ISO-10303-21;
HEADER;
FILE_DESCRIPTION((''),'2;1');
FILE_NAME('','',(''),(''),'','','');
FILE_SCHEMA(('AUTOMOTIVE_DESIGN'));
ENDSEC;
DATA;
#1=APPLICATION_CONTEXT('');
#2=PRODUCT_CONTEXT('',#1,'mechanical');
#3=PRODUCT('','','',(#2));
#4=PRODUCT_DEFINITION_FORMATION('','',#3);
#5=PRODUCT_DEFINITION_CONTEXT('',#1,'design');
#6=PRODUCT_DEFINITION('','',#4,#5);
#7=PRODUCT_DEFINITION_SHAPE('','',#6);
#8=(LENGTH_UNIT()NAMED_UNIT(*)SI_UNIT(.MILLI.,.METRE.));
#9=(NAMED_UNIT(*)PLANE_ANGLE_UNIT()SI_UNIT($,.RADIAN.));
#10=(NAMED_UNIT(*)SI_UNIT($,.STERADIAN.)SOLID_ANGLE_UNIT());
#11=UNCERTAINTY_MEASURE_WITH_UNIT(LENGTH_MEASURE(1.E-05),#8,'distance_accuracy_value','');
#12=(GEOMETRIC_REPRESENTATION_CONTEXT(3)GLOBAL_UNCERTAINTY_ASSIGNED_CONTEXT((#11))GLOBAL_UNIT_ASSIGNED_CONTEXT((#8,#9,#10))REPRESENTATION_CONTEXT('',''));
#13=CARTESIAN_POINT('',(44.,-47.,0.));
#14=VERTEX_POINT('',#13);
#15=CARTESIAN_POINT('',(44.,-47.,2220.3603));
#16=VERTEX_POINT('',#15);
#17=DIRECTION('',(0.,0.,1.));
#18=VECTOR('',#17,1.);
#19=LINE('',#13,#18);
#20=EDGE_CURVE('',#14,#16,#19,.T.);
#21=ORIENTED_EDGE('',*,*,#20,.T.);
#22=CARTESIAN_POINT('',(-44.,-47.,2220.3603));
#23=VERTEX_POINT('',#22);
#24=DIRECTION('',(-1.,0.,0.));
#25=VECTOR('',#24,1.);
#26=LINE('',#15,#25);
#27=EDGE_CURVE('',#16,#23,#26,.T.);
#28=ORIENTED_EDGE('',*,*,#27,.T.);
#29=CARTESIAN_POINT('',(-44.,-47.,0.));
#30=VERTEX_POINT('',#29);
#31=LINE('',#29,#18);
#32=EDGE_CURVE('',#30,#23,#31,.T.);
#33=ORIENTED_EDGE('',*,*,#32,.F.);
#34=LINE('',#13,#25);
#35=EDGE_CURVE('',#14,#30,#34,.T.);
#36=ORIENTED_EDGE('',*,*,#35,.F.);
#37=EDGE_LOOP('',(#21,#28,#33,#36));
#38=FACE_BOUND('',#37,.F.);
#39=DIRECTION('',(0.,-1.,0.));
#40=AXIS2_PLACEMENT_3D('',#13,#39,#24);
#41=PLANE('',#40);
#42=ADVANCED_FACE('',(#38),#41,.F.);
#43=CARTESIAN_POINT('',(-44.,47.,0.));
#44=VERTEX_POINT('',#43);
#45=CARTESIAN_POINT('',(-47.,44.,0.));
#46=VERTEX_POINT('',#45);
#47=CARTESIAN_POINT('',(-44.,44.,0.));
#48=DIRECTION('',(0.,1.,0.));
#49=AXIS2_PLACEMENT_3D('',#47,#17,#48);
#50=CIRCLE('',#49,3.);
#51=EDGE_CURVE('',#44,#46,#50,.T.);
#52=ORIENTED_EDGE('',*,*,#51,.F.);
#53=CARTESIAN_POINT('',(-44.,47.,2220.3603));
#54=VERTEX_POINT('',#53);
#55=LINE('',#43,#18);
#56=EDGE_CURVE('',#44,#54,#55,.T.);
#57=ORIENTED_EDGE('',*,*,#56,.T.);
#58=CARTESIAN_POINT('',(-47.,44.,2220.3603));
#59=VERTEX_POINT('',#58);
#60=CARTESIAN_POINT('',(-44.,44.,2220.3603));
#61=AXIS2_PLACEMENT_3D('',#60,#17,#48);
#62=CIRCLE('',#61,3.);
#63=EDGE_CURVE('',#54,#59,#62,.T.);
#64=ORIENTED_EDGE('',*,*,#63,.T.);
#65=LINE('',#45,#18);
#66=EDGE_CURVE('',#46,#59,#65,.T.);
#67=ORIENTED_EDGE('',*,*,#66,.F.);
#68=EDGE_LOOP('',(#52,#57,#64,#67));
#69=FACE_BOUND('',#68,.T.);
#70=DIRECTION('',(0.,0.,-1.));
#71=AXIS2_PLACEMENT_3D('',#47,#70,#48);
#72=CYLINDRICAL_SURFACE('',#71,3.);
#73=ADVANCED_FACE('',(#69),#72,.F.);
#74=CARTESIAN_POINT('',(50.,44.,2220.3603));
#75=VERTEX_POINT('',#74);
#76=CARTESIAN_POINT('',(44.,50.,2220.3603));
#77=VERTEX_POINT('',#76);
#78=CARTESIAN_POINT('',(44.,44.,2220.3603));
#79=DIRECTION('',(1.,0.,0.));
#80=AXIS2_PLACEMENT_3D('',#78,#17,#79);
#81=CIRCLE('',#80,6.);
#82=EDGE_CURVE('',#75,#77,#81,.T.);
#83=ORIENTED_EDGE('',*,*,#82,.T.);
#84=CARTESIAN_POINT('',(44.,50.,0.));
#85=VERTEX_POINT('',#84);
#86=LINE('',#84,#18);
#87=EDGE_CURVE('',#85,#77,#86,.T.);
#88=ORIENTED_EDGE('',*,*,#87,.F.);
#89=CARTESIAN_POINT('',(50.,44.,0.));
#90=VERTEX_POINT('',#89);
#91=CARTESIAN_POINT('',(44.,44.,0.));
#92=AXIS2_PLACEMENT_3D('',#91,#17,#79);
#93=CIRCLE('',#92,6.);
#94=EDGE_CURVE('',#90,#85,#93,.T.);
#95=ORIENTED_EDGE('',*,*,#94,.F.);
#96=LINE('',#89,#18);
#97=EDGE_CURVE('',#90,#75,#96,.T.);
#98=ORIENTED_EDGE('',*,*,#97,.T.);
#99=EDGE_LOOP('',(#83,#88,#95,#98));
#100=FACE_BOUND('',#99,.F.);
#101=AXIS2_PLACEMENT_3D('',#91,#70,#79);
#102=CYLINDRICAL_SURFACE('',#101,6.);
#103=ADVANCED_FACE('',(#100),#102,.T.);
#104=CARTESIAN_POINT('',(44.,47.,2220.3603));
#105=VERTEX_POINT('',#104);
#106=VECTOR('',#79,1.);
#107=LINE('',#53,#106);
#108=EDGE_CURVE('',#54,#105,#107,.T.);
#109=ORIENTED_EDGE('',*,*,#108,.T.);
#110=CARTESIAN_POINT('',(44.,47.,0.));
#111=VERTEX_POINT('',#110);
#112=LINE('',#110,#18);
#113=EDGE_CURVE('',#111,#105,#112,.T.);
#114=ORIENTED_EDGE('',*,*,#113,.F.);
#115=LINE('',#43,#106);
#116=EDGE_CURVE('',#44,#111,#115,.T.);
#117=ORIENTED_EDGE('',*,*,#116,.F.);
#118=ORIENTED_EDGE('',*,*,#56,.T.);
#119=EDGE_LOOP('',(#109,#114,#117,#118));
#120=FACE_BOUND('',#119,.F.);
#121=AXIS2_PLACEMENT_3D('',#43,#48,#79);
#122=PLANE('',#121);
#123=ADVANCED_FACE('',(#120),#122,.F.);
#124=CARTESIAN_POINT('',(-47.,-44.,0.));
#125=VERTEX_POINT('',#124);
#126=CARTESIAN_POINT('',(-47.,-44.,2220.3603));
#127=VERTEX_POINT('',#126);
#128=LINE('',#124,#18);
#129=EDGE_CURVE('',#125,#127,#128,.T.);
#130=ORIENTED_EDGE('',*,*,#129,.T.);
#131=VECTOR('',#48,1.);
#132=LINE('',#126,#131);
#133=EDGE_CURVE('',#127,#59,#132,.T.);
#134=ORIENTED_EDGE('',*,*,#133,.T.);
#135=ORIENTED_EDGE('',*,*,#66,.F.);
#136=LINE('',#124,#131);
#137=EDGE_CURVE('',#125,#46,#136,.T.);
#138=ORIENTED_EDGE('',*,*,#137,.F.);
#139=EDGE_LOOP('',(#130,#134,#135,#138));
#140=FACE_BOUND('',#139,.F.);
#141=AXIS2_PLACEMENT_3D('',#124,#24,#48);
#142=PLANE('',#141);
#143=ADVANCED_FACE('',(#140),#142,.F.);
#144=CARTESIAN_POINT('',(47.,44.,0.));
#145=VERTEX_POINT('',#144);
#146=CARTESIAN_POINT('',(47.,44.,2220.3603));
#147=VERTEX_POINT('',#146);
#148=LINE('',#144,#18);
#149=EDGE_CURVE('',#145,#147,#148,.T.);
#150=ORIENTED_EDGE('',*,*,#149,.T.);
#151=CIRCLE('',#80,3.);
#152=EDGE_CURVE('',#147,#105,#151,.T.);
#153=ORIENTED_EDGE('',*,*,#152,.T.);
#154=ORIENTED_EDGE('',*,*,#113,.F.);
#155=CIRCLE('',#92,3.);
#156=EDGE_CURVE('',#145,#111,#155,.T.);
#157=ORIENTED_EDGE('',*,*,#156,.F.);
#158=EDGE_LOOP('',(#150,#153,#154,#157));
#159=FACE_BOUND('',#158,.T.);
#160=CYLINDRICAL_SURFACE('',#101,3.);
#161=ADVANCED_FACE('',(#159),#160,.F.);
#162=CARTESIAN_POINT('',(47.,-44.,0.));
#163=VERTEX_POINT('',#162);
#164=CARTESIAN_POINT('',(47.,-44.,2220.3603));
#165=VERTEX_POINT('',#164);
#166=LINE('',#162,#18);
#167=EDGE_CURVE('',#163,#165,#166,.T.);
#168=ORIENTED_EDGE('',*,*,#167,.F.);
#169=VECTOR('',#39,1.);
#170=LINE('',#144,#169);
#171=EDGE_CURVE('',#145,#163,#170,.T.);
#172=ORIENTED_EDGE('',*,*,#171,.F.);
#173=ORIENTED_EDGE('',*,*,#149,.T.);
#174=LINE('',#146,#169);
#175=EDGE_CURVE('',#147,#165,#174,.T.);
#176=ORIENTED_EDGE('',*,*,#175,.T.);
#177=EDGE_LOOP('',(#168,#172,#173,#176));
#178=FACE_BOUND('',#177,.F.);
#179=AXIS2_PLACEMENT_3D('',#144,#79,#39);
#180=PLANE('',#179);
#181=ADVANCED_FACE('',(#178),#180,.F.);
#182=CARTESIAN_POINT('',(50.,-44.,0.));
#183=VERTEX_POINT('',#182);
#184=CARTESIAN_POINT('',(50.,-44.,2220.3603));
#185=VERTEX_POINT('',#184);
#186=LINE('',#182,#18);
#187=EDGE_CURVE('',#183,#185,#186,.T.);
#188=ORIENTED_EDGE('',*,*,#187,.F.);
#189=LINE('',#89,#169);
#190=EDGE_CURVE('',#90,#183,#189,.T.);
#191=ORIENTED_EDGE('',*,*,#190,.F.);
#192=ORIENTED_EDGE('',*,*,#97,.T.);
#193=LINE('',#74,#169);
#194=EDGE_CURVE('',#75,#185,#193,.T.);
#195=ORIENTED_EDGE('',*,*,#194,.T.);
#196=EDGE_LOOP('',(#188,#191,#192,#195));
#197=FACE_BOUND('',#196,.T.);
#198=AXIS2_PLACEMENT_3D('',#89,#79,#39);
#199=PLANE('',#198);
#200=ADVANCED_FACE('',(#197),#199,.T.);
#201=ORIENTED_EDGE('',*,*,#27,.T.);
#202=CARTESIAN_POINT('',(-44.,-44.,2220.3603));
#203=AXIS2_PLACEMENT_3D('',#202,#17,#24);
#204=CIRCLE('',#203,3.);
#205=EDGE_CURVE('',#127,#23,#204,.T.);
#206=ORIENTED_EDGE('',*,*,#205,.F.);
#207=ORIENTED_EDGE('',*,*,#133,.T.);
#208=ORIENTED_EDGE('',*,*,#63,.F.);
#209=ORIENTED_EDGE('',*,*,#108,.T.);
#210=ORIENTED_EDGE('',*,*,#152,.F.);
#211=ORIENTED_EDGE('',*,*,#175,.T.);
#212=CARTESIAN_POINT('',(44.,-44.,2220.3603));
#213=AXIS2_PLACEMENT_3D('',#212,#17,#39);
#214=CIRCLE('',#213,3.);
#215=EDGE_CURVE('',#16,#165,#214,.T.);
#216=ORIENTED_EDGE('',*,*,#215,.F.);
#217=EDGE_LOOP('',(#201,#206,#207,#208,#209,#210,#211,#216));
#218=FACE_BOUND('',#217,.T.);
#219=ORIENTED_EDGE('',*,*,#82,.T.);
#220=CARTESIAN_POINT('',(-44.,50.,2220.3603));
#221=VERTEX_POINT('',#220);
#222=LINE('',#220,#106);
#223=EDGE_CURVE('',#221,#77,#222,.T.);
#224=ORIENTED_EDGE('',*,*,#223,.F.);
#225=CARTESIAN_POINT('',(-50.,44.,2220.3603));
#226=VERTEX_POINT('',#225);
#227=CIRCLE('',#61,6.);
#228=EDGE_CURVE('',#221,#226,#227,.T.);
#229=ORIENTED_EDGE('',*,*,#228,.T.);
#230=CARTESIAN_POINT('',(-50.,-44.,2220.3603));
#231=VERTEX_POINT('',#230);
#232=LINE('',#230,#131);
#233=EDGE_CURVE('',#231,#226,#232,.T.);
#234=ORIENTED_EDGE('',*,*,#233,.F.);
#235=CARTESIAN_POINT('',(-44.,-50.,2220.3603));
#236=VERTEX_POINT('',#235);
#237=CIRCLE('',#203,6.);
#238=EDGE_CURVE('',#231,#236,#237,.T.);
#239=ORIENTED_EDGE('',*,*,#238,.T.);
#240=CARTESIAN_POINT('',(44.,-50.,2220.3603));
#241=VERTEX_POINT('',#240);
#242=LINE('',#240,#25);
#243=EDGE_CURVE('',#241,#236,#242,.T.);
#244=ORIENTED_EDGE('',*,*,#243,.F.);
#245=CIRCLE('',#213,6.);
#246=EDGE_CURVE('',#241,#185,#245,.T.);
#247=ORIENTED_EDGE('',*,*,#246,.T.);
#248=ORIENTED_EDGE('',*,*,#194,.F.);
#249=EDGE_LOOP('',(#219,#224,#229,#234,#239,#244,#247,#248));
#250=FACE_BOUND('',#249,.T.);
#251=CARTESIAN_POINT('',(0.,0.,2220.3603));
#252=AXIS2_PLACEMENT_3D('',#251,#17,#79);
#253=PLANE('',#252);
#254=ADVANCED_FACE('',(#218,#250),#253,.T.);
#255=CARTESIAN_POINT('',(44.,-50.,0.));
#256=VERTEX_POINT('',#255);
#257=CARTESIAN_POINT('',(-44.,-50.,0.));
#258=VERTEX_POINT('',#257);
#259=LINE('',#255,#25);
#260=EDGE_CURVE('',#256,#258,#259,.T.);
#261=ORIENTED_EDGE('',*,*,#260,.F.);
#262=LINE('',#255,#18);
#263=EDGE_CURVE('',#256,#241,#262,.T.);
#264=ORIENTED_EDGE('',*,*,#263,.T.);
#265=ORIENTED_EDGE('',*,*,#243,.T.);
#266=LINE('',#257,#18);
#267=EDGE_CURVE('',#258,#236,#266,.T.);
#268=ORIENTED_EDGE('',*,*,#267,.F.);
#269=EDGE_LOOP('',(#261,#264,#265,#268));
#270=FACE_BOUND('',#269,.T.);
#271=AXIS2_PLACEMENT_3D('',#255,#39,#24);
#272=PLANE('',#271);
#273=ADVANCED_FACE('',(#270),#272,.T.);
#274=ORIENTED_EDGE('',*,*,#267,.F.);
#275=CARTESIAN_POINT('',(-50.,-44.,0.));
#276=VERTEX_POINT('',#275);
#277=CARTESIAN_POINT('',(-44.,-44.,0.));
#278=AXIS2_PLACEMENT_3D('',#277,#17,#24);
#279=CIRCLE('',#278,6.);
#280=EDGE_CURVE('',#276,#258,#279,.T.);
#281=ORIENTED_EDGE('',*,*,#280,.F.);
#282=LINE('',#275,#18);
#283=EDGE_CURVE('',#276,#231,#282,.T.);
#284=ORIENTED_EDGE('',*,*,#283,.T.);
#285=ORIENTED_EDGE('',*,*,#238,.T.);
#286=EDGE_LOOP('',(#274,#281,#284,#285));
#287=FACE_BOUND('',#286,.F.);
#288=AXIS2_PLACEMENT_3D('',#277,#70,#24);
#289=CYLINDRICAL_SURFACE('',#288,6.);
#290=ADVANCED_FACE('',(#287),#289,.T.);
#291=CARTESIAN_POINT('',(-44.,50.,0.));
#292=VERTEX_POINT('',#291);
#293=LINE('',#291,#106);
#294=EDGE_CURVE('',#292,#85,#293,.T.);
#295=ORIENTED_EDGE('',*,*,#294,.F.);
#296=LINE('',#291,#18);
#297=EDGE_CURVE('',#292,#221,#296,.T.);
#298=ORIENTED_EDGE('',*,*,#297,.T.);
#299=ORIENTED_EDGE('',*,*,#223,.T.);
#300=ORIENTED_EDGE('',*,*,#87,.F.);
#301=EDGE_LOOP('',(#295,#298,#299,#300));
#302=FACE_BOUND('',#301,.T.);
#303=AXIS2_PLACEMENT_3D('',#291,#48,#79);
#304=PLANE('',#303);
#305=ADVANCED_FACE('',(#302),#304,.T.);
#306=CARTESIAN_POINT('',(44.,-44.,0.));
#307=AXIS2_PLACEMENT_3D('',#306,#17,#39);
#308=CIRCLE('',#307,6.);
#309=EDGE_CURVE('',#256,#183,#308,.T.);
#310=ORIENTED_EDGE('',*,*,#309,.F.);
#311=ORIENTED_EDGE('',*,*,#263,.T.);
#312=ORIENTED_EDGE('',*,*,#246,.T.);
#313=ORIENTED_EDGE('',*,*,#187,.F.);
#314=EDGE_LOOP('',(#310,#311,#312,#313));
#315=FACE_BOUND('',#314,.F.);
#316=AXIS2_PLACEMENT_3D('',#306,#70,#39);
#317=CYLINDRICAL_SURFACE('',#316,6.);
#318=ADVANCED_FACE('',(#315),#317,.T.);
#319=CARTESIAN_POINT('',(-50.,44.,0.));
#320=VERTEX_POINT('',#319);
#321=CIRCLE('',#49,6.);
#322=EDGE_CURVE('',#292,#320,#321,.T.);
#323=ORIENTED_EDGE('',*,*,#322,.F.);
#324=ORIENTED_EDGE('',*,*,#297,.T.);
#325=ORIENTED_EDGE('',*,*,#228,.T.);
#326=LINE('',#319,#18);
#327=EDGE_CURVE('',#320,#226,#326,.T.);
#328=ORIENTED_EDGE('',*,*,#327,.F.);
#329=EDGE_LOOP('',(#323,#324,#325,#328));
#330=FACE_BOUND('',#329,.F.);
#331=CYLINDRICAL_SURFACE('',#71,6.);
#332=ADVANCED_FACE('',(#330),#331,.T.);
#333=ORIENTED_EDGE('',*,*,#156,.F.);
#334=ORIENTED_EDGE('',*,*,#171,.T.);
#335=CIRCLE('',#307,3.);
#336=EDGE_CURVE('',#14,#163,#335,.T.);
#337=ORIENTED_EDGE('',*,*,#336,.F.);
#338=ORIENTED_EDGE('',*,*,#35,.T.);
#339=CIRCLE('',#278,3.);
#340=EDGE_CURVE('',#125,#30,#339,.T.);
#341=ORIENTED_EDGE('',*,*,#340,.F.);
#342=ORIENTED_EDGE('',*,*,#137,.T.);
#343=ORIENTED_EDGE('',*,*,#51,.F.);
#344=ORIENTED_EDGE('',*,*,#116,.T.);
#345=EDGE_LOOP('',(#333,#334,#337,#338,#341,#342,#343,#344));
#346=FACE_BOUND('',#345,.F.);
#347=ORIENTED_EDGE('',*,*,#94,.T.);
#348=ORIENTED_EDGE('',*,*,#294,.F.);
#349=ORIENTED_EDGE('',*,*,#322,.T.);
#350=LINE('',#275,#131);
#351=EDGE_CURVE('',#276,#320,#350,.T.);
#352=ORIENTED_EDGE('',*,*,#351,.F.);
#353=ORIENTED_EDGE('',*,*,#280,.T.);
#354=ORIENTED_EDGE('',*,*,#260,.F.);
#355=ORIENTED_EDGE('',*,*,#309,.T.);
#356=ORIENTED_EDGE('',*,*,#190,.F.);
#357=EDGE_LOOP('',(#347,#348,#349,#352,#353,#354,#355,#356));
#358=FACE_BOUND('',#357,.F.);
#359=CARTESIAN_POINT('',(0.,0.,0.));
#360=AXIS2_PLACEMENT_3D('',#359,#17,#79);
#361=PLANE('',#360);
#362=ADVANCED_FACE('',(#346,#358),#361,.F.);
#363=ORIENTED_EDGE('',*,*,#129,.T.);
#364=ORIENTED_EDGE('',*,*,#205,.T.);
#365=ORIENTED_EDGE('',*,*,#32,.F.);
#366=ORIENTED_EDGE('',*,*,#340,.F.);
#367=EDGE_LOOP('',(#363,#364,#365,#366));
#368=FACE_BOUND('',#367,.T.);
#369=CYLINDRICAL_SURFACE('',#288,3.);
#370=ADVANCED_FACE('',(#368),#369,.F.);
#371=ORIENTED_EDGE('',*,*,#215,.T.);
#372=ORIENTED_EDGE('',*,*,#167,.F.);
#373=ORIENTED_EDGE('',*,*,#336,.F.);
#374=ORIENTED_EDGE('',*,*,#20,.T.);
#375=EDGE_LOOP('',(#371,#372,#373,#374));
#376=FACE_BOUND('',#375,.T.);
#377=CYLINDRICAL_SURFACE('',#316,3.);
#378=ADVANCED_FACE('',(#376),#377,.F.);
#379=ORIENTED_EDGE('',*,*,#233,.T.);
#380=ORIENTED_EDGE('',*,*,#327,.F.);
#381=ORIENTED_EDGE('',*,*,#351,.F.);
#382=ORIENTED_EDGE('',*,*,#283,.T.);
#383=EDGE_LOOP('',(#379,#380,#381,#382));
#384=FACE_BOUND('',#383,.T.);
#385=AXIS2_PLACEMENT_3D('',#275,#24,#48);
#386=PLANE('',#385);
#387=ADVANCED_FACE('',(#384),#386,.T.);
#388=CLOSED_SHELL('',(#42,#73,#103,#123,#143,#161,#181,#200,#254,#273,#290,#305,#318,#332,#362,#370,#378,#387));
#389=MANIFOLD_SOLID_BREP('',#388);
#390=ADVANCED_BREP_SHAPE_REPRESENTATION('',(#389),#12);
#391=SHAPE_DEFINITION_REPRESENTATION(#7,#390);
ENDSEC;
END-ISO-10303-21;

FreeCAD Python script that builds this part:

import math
import FreeCAD as App
import Part
import Sketcher

V = App.Vector

doc = App.newDocument("Part")
body = doc.addObject("PartDesign::Body", "Body")

sketch1 = body.newObject("Sketcher::SketchObject", "Sketch")
sketch1.AttachmentSupport = (doc.getObject("XY_Plane"), [""])
sketch1.MapMode = "FlatFace"
sketch1.addGeometry(Part.LineSegment(V(-50, 44, 0), V(-50, -44, 0)), False)
sketch1.addGeometry(Part.ArcOfCircle(Part.Circle(V(-44, -44, 0), V(0, 0, 1), 6), math.radians(180), math.radians(270)), False)
sketch1.addGeometry(Part.LineSegment(V(-44, -50, 0), V(44, -50, 0)), False)
sketch1.addGeometry(Part.ArcOfCircle(Part.Circle(V(44, -44, 0), V(0, 0, 1), 6), math.radians(-90), math.radians(0)), False)
sketch1.addGeometry(Part.LineSegment(V(50, -44, 0), V(50, 44, 0)), False)
sketch1.addGeometry(Part.ArcOfCircle(Part.Circle(V(44, 44, 0), V(0, 0, 1), 6), math.radians(0), math.radians(90)), False)
sketch1.addGeometry(Part.LineSegment(V(44, 50, 0), V(-44, 50, 0)), False)
sketch1.addGeometry(Part.ArcOfCircle(Part.Circle(V(-44, 44, 0), V(0, 0, 1), 6), math.radians(90), math.radians(180)), False)
sketch1.addGeometry(Part.ArcOfCircle(Part.Circle(V(-44, 44, 0), V(0, 0, 1), 3), math.radians(90), math.radians(180)), False)
sketch1.addGeometry(Part.LineSegment(V(-44, 47, 0), V(44, 47, 0)), False)
sketch1.addGeometry(Part.ArcOfCircle(Part.Circle(V(44, 44, 0), V(0, 0, 1), 3), math.radians(0), math.radians(90)), False)
sketch1.addGeometry(Part.LineSegment(V(47, 44, 0), V(47, -44, 0)), False)
sketch1.addGeometry(Part.ArcOfCircle(Part.Circle(V(44, -44, 0), V(0, 0, 1), 3), math.radians(-90), math.radians(0)), False)
sketch1.addGeometry(Part.LineSegment(V(44, -47, 0), V(-44, -47, 0)), False)
sketch1.addGeometry(Part.ArcOfCircle(Part.Circle(V(-44, -44, 0), V(0, 0, 1), 3), math.radians(180), math.radians(270)), False)
sketch1.addGeometry(Part.LineSegment(V(-47, -44, 0), V(-47, 44, 0)), False)
sketch1.addConstraint(Sketcher.Constraint("Tangent", 0, 2, 1, 1))
sketch1.addConstraint(Sketcher.Constraint("Tangent", 1, 2, 2, 1))
sketch1.addConstraint(Sketcher.Constraint("Tangent", 2, 2, 3, 1))
sketch1.addConstraint(Sketcher.Constraint("Tangent", 3, 2, 4, 1))
sketch1.addConstraint(Sketcher.Constraint("Tangent", 4, 2, 5, 1))
sketch1.addConstraint(Sketcher.Constraint("Tangent", 5, 2, 6, 1))
sketch1.addConstraint(Sketcher.Constraint("Tangent", 6, 2, 7, 1))
sketch1.addConstraint(Sketcher.Constraint("Tangent", 7, 2, 0, 1))
sketch1.addConstraint(Sketcher.Constraint("Tangent", 8, 1, 9, 1))
sketch1.addConstraint(Sketcher.Constraint("Tangent", 9, 2, 10, 2))
sketch1.addConstraint(Sketcher.Constraint("Tangent", 10, 1, 11, 1))
sketch1.addConstraint(Sketcher.Constraint("Tangent", 11, 2, 12, 2))
sketch1.addConstraint(Sketcher.Constraint("Tangent", 12, 1, 13, 1))
sketch1.addConstraint(Sketcher.Constraint("Tangent", 13, 2, 14, 2))
sketch1.addConstraint(Sketcher.Constraint("Tangent", 14, 1, 15, 1))
sketch1.addConstraint(Sketcher.Constraint("Tangent", 15, 2, 8, 2))
sketch1.addConstraint(Sketcher.Constraint("Vertical", 0))
sketch1.addConstraint(Sketcher.Constraint("Horizontal", 2))
sketch1.addConstraint(Sketcher.Constraint("Vertical", 4))
sketch1.addConstraint(Sketcher.Constraint("Horizontal", 6))
sketch1.addConstraint(Sketcher.Constraint("Horizontal", 9))
sketch1.addConstraint(Sketcher.Constraint("Vertical", 11))
sketch1.addConstraint(Sketcher.Constraint("Horizontal", 13))
sketch1.addConstraint(Sketcher.Constraint("Vertical", 15))
sketch1.addConstraint(Sketcher.Constraint("Coincident", 8, 3, 7, 3))
sketch1.addConstraint(Sketcher.Constraint("Coincident", 10, 3, 5, 3))
sketch1.addConstraint(Sketcher.Constraint("Coincident", 12, 3, 3, 3))
sketch1.addConstraint(Sketcher.Constraint("Equal", 1, 3))
sketch1.addConstraint(Sketcher.Constraint("Equal", 3, 5))
sketch1.addConstraint(Sketcher.Constraint("Equal", 5, 7))
sketch1.addConstraint(Sketcher.Constraint("Equal", 12, 14))
sketch1.addConstraint(Sketcher.Constraint("Symmetric", 1, 3, 5, 3, -1, 1))
sketch1.addConstraint(Sketcher.Constraint("Equal", 13, 0))
sketch1.addConstraint(Sketcher.Constraint("Radius", 1, 6.0))
sketch1.addConstraint(Sketcher.Constraint("Radius", 8, 3.0))
sketch1.addConstraint(Sketcher.Constraint("DistanceX", 0, 2, -1, 1, 50.0))
pad1 = body.newObject("PartDesign::Pad", "Pad")
pad1.Profile = sketch1
pad1.Length = 2220.3603

doc.recompute()
